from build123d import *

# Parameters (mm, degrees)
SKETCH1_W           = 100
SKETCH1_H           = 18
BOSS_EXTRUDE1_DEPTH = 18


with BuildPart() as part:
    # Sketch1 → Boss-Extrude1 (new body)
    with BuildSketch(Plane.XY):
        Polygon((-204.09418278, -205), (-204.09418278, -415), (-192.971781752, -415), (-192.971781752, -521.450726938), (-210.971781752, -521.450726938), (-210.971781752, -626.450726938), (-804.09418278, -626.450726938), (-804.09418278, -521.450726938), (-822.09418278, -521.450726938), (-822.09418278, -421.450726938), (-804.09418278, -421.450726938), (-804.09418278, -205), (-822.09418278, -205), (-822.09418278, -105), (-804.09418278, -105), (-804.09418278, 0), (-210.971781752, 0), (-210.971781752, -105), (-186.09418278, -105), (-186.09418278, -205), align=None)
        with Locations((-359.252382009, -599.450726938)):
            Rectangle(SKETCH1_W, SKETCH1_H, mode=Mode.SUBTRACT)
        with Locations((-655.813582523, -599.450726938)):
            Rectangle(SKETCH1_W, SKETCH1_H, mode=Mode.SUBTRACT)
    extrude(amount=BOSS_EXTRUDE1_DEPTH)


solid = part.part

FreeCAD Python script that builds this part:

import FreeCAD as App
import Part
import Sketcher
from FreeCAD import Vector
Q = App.Units.Quantity

doc = App.newDocument("Part")
body = doc.addObject("PartDesign::Body", "Body")

# Sketch on XY plane
sketch1 = doc.addObject("Sketcher::SketchObject", "Sketch")
body.addObject(sketch1)
sketch1.AttachmentSupport = (doc.XY_Plane, [""])
sketch1.MapMode = "FlatFace"
sketch1.addGeometry([
    Part.LineSegment(Vector(-204.094183, -415, 0), Vector(-204.094183, -205, 0)),  # 0
    Part.LineSegment(Vector(-204.094183, -205, 0), Vector(-186.094183, -205, 0)),  # 1
    Part.LineSegment(Vector(-186.094183, -205, 0), Vector(-186.094183, -105, 0)),  # 2
    Part.LineSegment(Vector(-186.094183, -105, 0), Vector(-210.971782, -105, 0)),  # 3
    Part.LineSegment(Vector(-210.971782, -105, 0), Vector(-210.971782, 0, 0)),  # 4
    Part.LineSegment(Vector(-210.971782, 0, 0), Vector(-804.094183, 0, 0)),  # 5
    Part.LineSegment(Vector(-804.094183, 0, 0), Vector(-804.094183, -105, 0)),  # 6
    Part.LineSegment(Vector(-804.094183, -105, 0), Vector(-822.094183, -105, 0)),  # 7
    Part.LineSegment(Vector(-822.094183, -105, 0), Vector(-822.094183, -205, 0)),  # 8
    Part.LineSegment(Vector(-822.094183, -205, 0), Vector(-804.094183, -205, 0)),  # 9
    Part.LineSegment(Vector(-804.094183, -205, 0), Vector(-804.094183, -421.450727, 0)),  # 10
    Part.LineSegment(Vector(-804.094183, -421.450727, 0), Vector(-822.094183, -421.450727, 0)),  # 11
    Part.LineSegment(Vector(-822.094183, -421.450727, 0), Vector(-822.094183, -521.450727, 0)),  # 12
    Part.LineSegment(Vector(-822.094183, -521.450727, 0), Vector(-804.094183, -521.450727, 0)),  # 13
    Part.LineSegment(Vector(-804.094183, -521.450727, 0), Vector(-804.094183, -626.450727, 0)),  # 14
    Part.LineSegment(Vector(-804.094183, -626.450727, 0), Vector(-210.971782, -626.450727, 0)),  # 15
    Part.LineSegment(Vector(-210.971782, -626.450727, 0), Vector(-210.971782, -521.450727, 0)),  # 16
    Part.LineSegment(Vector(-210.971782, -521.450727, 0), Vector(-192.971782, -521.450727, 0)),  # 17
    Part.LineSegment(Vector(-192.971782, -521.450727, 0), Vector(-192.971782, -415, 0)),  # 18
    Part.LineSegment(Vector(-192.971782, -415, 0), Vector(-204.094183, -415, 0)),  # 19
    Part.LineSegment(Vector(-409.252382, -608.450727, 0), Vector(-409.252382, -590.450727, 0)),  # 20
    Part.LineSegment(Vector(-409.252382, -590.450727, 0), Vector(-309.252382, -590.450727, 0)),  # 21
    Part.LineSegment(Vector(-309.252382, -590.450727, 0), Vector(-309.252382, -608.450727, 0)),  # 22
    Part.LineSegment(Vector(-309.252382, -608.450727, 0), Vector(-409.252382, -608.450727, 0)),  # 23
    Part.LineSegment(Vector(-705.813583, -608.450727, 0), Vector(-705.813583, -590.450727, 0)),  # 24
    Part.LineSegment(Vector(-705.813583, -590.450727, 0), Vector(-605.813583, -590.450727, 0)),  # 25
    Part.LineSegment(Vector(-605.813583, -590.450727, 0), Vector(-605.813583, -608.450727, 0)),  # 26
    Part.LineSegment(Vector(-605.813583, -608.450727, 0), Vector(-705.813583, -608.450727, 0)),  # 27
], False)
sketch1.addConstraint([
    Sketcher.Constraint("Coincident", 0, 2, 1, 1),
    Sketcher.Constraint("Coincident", 1, 2, 2, 1),
    Sketcher.Constraint("Coincident", 2, 2, 3, 1),
    Sketcher.Constraint("Coincident", 3, 2, 4, 1),
    Sketcher.Constraint("Coincident", 4, 2, 5, 1),
    Sketcher.Constraint("Coincident", 5, 2, 6, 1),
    Sketcher.Constraint("Coincident", 6, 2, 7, 1),
    Sketcher.Constraint("Coincident", 7, 2, 8, 1),
    Sketcher.Constraint("Coincident", 8, 2, 9, 1),
    Sketcher.Constraint("Coincident", 9, 2, 10, 1),
    Sketcher.Constraint("Coincident", 10, 2, 11, 1),
    Sketcher.Constraint("Coincident", 11, 2, 12, 1),
    Sketcher.Constraint("Coincident", 12, 2, 13, 1),
    Sketcher.Constraint("Coincident", 13, 2, 14, 1),
    Sketcher.Constraint("Coincident", 14, 2, 15, 1),
    Sketcher.Constraint("Coincident", 15, 2, 16, 1),
    Sketcher.Constraint("Coincident", 16, 2, 17, 1),
    Sketcher.Constraint("Coincident", 17, 2, 18, 1),
    Sketcher.Constraint("Coincident", 18, 2, 19, 1),
    Sketcher.Constraint("Coincident", 19, 2, 0, 1),
    Sketcher.Constraint("Coincident", 20, 2, 21, 1),
    Sketcher.Constraint("Coincident", 21, 2, 22, 1),
    Sketcher.Constraint("Coincident", 22, 2, 23, 1),
    Sketcher.Constraint("Coincident", 23, 2, 20, 1),
    Sketcher.Constraint("Coincident", 24, 2, 25, 1),
    Sketcher.Constraint("Coincident", 25, 2, 26, 1),
    Sketcher.Constraint("Coincident", 26, 2, 27, 1),
    Sketcher.Constraint("Coincident", 27, 2, 24, 1),
    Sketcher.Constraint("Vertical", 0),
    Sketcher.Constraint("Horizontal", 1),
    Sketcher.Constraint("Vertical", 2),
    Sketcher.Constraint("Horizontal", 3),
    Sketcher.Constraint("Vertical", 4),
    Sketcher.Constraint("Horizontal", 5),
    Sketcher.Constraint("Vertical", 6),
    Sketcher.Constraint("Horizontal", 7),
    Sketcher.Constraint("Vertical", 8),
    Sketcher.Constraint("Horizontal", 9),
    Sketcher.Constraint("Vertical", 10),
    Sketcher.Constraint("Horizontal", 11),
    Sketcher.Constraint("Vertical", 12),
    Sketcher.Constraint("Horizontal", 13),
    Sketcher.Constraint("Vertical", 14),
    Sketcher.Constraint("Horizontal", 15),
    Sketcher.Constraint("Vertical", 16),
    Sketcher.Constraint("Horizontal", 17),
    Sketcher.Constraint("Vertical", 18),
    Sketcher.Constraint("Horizontal", 19),
    Sketcher.Constraint("Vertical", 20),
    Sketcher.Constraint("Horizontal", 21),
    Sketcher.Constraint("Vertical", 22),
    Sketcher.Constraint("Horizontal", 23),
    Sketcher.Constraint("Vertical", 24),
    Sketcher.Constraint("Horizontal", 25),
    Sketcher.Constraint("Vertical", 26),
    Sketcher.Constraint("Horizontal", 27),
    Sketcher.Constraint("PointOnObject", 4, 2, -1),
    Sketcher.Constraint("Horizontal", 3, 2, 6, 2),
    Sketcher.Constraint("Horizontal", 1, 2, 8, 2),
    Sketcher.Constraint("Horizontal", 13, 2, 16, 2),
    Sketcher.Constraint("Horizontal", 21, 2, 24, 2),
    Sketcher.Constraint("Horizontal", 23, 2, 26, 2),
    Sketcher.Constraint("Vertical", 6, 2, 9, 2),
    Sketcher.Constraint("Vertical", 8, 2, 11, 2),
    Sketcher.Constraint("Vertical", 10, 2, 13, 2),
    Sketcher.Constraint("Vertical", 4, 2, 15, 2),
    Sketcher.Constraint("Equal", 1, 7),
    Sketcher.Constraint("Equal", 13, 17),
    Sketcher.Constraint("Equal", 23, 25),
    Sketcher.Constraint("Equal", 27, 2),
    Sketcher.Constraint("Equal", 8, 12),
    Sketcher.Constraint("Equal", 6, 14),
    Sketcher.Constraint("Equal", 17, 20),
    Sketcher.Constraint("DistanceX", 1, 1, 1, 2, Q("18 mm")),
    Sketcher.Constraint("DistanceX", 21, 1, 21, 2, Q("100 mm")),
    Sketcher.Constraint("DistanceY", 0, 1, 0, 2, Q("210 mm")),
    Sketcher.Constraint("DistanceY", 4, 1, 4, 2, Q("105 mm")),
    Sketcher.Constraint("DistanceX", 5, 2, 2, 2, Q("618 mm")),
    Sketcher.Constraint("DistanceY", 15, 2, 20, 2, Q("36 mm")),
    Sketcher.Constraint("DistanceX", 3, 2, 3, 1, Q("24.877599 mm")),
    Sketcher.Constraint("DistanceX", 20, 2, 15, 2, Q("198.2806 mm")),
    Sketcher.Constraint("DistanceX", 14, 2, 24, 2, Q("98.2806 mm")),
    Sketcher.Constraint("DistanceY", 10, 2, 10, 1, Q("216.450727 mm")),
    Sketcher.Constraint("DistanceX", 3, 2, -1, 1, Q("210.971782 mm")),
])
pad1 = doc.addObject("PartDesign::Pad", "Pad")
body.addObject(pad1)
pad1.Profile = sketch1
pad1.Length = 18

doc.recompute()
